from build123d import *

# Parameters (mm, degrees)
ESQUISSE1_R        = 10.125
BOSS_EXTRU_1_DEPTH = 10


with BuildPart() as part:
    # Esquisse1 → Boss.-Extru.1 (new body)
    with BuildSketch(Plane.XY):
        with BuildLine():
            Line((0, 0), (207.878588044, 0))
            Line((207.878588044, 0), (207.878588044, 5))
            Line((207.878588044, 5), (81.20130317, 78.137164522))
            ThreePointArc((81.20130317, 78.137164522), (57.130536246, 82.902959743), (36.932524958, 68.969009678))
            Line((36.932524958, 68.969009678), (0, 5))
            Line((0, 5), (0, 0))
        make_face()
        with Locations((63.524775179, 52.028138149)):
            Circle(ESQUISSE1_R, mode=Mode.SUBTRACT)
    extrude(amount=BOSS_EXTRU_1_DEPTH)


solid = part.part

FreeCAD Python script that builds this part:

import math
import FreeCAD as App
import Part
import Sketcher
Q = App.Units.Quantity

doc = App.newDocument("Part")
params = doc.addObject("Spreadsheet::Sheet", "Params")
for row, (alias, value) in enumerate([
    ("sketch1_diameter", "20.25 mm"),
    ("sketch1_height", "5 mm"),
    ("sketch1_radius", "31.53 mm"),
    ("pad1_length", "10 mm"),
], start=1):
    params.set(f"A{row}", alias)
    params.set(f"B{row}", "=" + value)
    params.setAlias(f"B{row}", alias)

body = doc.addObject("PartDesign::Body", "Body")

sketch1 = doc.addObject("Sketcher::SketchObject", "Sketch")
body.addObject(sketch1)
sketch1.AttachmentSupport = (doc.XY_Plane, [""])
sketch1.MapMode = "FlatFace"
sketch1.addGeometry([
    Part.LineSegment(App.Vector(0, 0, 0), App.Vector(207.878588, 0, 0)),
    Part.LineSegment(App.Vector(207.878588, 0, 0), App.Vector(207.878588, 5, 0)),
    Part.LineSegment(App.Vector(207.878588, 5, 0), App.Vector(81.201303, 78.137165, 0)),
    Part.ArcOfCircle(Part.Circle(App.Vector(63.524775, 52.028138, 0), App.Vector(0, 0, 1), 31.53), math.radians(55.900921), math.radians(147.500399)),
    Part.LineSegment(App.Vector(36.932525, 68.96901, 0), App.Vector(0, 5, 0)),
    Part.LineSegment(App.Vector(0, 5, 0), App.Vector(0, 0, 0)),
    Part.Circle(App.Vector(63.524775, 52.028138, 0), App.Vector(0, 0, 1), 10.125),
], False)
sketch1.addConstraint([
    Sketcher.Constraint("Coincident", 0, 2, 1, 1),
    Sketcher.Constraint("Coincident", 1, 2, 2, 1),
    Sketcher.Constraint("Coincident", 2, 2, 3, 1),
    Sketcher.Constraint("Coincident", 3, 2, 4, 1),
    Sketcher.Constraint("Coincident", 4, 2, 5, 1),
    Sketcher.Constraint("Coincident", 5, 2, 0, 1),
    Sketcher.Constraint("Horizontal", 0),
    Sketcher.Constraint("Vertical", 1),
    Sketcher.Constraint("Vertical", 5),
    Sketcher.Constraint("Coincident", 5, 2, -1, 1),
    Sketcher.Constraint("Coincident", 6, 3, 3, 3),
    Sketcher.Constraint("Perpendicular", 2, 4),
    Sketcher.Constraint("Horizontal", 1, 2, 4, 2),
    Sketcher.Constraint("Diameter", 6, 20.25),
    Sketcher.Constraint("DistanceY", 1, 1, 1, 2, 5.0),
    Sketcher.Constraint("Angle", 2, Q("150 deg")),
    Sketcher.Constraint("Radius", 3, 31.53),
    Sketcher.Constraint("DistanceX", 0, 1, 0, 2, 207.878588),
    Sketcher.Constraint("Distance", 2, 146.274329),
    Sketcher.Constraint("Distance", 4, 73.86505),
])
sketch1.setExpression("Constraints[13]", "Params.sketch1_diameter")
sketch1.setExpression("Constraints[14]", "Params.sketch1_height")
sketch1.setExpression("Constraints[16]", "Params.sketch1_radius")
pad1 = doc.addObject("PartDesign::Pad", "Pad")
body.addObject(pad1)
pad1.Profile = sketch1
pad1.setExpression("Length", "Params.pad1_length")

doc.recompute()
